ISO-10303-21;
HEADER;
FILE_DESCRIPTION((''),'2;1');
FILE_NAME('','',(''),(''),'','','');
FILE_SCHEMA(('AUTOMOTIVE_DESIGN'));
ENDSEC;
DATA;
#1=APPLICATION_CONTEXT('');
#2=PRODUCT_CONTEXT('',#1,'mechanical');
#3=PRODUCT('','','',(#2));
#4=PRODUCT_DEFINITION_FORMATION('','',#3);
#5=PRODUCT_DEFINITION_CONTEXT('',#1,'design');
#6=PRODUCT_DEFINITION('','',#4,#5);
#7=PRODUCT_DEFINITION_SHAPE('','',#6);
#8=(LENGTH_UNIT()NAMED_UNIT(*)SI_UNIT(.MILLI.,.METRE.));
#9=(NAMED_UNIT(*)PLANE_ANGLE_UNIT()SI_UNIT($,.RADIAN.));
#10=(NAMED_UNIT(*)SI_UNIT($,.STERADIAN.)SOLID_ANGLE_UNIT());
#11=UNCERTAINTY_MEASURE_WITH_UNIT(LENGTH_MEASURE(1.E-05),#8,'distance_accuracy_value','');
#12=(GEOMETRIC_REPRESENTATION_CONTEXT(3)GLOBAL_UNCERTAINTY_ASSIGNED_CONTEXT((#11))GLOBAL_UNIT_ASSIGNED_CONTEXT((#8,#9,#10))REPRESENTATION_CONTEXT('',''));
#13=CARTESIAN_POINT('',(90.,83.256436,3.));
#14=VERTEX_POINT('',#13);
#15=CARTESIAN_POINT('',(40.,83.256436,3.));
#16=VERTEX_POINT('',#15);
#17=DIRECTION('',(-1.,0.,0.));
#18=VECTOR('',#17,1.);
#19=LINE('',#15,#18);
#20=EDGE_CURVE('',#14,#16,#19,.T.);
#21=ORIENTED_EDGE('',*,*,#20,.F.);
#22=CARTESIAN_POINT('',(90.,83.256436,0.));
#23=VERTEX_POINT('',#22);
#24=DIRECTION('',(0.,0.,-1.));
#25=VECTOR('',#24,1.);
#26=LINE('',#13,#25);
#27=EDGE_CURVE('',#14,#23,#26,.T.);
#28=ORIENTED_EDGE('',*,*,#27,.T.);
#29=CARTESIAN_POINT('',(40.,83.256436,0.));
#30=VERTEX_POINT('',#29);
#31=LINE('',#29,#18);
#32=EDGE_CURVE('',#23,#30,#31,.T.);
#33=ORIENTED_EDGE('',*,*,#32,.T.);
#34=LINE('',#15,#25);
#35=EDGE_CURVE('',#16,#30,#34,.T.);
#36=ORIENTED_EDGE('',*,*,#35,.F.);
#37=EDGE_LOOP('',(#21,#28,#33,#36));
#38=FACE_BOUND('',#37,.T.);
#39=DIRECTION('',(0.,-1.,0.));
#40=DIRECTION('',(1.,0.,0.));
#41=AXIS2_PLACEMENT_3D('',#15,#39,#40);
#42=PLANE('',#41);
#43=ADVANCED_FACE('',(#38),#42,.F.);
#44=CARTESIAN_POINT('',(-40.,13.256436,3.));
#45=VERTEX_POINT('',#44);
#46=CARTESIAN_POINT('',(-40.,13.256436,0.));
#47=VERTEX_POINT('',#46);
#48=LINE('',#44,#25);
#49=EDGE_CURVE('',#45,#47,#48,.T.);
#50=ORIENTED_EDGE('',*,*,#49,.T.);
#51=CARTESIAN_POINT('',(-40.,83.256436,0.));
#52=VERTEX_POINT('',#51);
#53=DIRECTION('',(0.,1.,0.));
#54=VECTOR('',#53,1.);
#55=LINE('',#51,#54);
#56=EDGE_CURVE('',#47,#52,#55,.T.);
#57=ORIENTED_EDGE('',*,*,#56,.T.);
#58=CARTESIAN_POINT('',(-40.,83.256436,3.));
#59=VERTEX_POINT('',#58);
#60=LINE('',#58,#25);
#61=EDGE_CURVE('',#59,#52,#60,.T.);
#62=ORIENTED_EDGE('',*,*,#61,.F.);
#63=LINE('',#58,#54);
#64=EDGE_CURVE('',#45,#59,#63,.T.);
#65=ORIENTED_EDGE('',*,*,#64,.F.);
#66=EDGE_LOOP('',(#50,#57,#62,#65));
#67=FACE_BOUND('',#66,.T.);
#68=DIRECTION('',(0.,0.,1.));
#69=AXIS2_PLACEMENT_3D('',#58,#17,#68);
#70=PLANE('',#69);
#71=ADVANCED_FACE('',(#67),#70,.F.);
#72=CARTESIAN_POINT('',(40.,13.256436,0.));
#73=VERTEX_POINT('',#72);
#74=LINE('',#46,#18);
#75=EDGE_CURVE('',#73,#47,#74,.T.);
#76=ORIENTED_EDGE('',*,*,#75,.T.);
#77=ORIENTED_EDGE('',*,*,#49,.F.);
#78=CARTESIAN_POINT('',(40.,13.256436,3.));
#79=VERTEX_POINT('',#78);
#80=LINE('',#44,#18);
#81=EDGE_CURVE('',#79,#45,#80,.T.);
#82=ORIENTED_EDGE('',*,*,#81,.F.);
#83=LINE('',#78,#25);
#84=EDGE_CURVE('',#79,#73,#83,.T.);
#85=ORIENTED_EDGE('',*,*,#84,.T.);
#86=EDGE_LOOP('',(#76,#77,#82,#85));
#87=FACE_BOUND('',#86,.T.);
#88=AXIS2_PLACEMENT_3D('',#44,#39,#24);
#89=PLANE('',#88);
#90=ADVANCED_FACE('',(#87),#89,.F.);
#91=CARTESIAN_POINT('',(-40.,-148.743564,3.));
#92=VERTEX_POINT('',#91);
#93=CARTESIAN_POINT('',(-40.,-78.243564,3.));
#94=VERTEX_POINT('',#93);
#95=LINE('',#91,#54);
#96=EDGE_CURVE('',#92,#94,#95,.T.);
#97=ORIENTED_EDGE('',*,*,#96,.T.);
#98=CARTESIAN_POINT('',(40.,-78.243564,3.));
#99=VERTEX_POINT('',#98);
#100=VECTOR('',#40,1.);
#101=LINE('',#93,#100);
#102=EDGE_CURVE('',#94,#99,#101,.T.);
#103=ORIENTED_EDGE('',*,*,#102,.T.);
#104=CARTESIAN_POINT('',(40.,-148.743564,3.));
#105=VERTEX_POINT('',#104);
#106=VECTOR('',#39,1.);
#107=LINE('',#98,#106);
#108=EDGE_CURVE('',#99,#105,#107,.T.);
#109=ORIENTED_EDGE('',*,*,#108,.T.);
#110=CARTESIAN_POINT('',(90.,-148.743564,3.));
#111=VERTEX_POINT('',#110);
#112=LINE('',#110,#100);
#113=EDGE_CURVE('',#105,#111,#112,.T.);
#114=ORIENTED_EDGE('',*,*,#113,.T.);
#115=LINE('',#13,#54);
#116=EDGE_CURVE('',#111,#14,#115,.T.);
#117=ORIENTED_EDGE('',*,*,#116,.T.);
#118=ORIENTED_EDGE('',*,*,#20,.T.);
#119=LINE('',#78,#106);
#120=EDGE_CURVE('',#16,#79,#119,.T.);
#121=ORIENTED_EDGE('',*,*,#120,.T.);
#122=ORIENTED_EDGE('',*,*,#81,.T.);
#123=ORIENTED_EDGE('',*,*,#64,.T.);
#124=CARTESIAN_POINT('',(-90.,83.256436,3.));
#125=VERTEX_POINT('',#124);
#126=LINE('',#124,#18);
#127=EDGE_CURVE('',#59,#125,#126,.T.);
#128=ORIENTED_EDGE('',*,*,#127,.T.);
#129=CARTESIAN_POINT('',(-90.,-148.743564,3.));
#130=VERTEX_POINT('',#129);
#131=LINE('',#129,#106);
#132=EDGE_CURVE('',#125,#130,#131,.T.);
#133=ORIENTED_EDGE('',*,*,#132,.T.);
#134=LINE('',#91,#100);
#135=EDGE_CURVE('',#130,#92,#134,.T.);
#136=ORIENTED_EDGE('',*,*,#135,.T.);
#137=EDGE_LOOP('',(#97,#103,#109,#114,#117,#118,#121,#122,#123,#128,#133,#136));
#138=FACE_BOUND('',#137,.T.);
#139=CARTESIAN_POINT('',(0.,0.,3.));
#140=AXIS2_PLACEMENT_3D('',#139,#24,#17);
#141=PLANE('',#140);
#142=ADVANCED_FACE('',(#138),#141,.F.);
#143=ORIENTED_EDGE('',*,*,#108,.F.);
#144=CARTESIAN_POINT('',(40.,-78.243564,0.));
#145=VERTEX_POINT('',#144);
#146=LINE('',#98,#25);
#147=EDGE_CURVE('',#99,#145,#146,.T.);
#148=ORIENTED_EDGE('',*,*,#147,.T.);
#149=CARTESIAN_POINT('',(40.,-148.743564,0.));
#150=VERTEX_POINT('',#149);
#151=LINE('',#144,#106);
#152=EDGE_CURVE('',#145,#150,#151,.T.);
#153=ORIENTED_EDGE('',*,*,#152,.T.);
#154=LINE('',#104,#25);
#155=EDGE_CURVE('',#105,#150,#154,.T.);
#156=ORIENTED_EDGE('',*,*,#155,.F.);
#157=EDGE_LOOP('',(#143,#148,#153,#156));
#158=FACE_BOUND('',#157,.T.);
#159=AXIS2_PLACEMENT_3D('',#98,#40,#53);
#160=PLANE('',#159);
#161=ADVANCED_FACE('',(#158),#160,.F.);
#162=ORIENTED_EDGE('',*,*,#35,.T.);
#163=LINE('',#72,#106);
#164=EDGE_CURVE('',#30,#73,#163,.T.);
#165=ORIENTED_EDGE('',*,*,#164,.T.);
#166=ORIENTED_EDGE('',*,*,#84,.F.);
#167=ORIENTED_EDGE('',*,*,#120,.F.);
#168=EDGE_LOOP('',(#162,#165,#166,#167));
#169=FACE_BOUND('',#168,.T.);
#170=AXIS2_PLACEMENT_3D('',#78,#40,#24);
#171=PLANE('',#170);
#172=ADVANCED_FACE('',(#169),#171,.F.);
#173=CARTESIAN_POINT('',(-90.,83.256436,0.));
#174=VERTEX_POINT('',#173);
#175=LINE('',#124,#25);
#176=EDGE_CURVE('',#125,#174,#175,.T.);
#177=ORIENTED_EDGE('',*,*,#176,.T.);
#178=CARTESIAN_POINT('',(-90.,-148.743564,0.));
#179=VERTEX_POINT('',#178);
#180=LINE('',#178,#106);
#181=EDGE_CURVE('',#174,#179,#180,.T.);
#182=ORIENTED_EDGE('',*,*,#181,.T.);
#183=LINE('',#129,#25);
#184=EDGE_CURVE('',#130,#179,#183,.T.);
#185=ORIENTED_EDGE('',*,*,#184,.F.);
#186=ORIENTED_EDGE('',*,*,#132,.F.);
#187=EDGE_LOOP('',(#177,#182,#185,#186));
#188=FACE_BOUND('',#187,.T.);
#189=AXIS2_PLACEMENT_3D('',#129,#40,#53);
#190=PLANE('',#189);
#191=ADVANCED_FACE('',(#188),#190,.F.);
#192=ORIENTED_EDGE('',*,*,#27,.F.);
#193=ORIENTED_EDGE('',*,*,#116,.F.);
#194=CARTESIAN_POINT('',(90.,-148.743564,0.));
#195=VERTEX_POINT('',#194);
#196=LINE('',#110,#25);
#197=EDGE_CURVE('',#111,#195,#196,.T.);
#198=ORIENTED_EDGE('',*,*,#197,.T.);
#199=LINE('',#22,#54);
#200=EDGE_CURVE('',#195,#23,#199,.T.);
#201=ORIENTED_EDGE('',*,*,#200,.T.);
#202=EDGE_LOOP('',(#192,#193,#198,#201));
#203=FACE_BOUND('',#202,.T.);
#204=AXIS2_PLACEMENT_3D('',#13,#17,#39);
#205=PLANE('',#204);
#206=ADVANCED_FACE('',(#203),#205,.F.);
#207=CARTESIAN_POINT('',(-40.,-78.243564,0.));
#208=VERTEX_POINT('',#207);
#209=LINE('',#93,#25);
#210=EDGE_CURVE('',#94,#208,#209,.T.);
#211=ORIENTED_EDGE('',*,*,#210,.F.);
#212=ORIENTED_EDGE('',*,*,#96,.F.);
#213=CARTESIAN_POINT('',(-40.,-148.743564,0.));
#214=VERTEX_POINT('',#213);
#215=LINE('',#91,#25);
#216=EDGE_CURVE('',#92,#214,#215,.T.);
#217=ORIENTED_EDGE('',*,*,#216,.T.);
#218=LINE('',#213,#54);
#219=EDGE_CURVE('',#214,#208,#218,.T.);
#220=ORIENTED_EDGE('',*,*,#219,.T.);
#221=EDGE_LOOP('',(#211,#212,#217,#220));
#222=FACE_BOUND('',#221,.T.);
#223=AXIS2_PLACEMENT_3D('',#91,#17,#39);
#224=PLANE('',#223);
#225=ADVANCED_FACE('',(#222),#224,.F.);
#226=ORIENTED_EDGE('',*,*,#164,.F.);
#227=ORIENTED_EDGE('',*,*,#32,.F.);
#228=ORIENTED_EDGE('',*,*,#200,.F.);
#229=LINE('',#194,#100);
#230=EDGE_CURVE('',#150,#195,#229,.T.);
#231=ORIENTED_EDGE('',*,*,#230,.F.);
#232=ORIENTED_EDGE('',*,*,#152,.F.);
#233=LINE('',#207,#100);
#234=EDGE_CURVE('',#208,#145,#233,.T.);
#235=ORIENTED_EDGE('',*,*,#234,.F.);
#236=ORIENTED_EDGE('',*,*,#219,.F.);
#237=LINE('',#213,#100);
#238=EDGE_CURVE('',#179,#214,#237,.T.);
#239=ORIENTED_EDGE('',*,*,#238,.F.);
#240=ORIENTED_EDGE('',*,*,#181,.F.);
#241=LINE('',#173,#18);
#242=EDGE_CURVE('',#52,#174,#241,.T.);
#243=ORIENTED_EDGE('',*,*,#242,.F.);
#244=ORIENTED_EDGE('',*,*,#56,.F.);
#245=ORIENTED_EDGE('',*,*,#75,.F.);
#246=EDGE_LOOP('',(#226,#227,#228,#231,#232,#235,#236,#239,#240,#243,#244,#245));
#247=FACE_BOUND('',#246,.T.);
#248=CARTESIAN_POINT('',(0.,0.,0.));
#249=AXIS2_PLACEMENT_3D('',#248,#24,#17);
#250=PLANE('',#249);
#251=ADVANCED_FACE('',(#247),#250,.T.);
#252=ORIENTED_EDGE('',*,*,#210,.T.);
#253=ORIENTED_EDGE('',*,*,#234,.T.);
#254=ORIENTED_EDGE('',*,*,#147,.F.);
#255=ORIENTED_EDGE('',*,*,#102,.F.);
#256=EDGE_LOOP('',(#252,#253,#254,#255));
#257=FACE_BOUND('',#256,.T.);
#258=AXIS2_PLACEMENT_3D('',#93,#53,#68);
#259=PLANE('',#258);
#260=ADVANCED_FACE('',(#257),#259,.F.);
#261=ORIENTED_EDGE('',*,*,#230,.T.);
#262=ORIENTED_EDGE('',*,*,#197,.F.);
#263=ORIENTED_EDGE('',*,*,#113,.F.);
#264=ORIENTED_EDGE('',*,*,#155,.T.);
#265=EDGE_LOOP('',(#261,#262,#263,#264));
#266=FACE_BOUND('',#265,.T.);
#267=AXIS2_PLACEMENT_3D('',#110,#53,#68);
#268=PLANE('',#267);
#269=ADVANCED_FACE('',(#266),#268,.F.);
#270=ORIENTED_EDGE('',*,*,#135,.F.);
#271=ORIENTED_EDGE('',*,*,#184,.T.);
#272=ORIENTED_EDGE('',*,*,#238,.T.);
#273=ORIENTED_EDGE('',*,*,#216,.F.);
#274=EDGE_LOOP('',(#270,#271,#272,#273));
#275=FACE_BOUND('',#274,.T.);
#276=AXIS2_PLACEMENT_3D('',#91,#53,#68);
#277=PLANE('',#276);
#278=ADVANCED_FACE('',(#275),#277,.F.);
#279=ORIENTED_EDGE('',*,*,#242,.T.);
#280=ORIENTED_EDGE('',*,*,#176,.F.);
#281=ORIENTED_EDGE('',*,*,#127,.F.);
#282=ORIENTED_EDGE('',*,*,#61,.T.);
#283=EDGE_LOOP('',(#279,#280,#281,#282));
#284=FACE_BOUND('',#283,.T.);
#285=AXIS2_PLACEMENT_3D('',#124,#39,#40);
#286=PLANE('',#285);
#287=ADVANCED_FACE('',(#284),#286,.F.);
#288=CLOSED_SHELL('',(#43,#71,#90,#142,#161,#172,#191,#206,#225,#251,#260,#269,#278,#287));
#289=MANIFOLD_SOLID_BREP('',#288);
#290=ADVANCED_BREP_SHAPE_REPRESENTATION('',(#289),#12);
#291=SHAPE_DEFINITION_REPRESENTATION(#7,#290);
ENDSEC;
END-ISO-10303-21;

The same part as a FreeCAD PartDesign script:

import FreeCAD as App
import Part
import Sketcher
Q = App.Units.Quantity


def add_polygon(sketch, points):
    """Adds a closed chain of lines whose ends are joined by coincident constraints."""
    first, n = sketch.GeometryCount, len(points)
    for a, b in zip(points, points[1:] + points[:1]):
        sketch.addGeometry(Part.LineSegment(App.Vector(*a, 0), App.Vector(*b, 0)), False)
    for i in range(n):
        sketch.addConstraint(Sketcher.Constraint("Coincident", first + i, 2, first + (i + 1) % n, 1))

doc = App.newDocument("Part")
body = doc.addObject("PartDesign::Body", "Body")

# Sketch on XY plane
sketch1 = body.newObject("Sketcher::SketchObject", "Sketch")
sketch1.AttachmentSupport = (doc.getObject("XY_Plane"), [""])
sketch1.MapMode = "FlatFace"
add_polygon(sketch1, [(-40, 13.256436), (-40, 83.256436), (-90, 83.256436), (-90, -148.743564), (-40, -148.743564), (-40, -78.243564), (40, -78.243564), (40, -148.743564), (90, -148.743564), (90, 83.256436), (40, 83.256436), (40, 13.256436)])  # lines 0-11
sketch1.addConstraint([
    Sketcher.Constraint("Vertical", 0),
    Sketcher.Constraint("Horizontal", 1),
    Sketcher.Constraint("Vertical", 2),
    Sketcher.Constraint("Horizontal", 3),
    Sketcher.Constraint("Vertical", 4),
    Sketcher.Constraint("Horizontal", 5),
    Sketcher.Constraint("Vertical", 6),
    Sketcher.Constraint("Horizontal", 7),
    Sketcher.Constraint("Vertical", 8),
    Sketcher.Constraint("Horizontal", 9),
    Sketcher.Constraint("Vertical", 10),
    Sketcher.Constraint("Horizontal", 11),
    Sketcher.Constraint("Symmetric", 3, 2, 6, 2, -2),
    Sketcher.Constraint("Symmetric", 1, 2, 8, 2, -2),
    Sketcher.Constraint("Vertical", 0, 2, 3, 2),
    Sketcher.Constraint("Vertical", 6, 2, 9, 2),
    Sketcher.Constraint("DistanceX", 1, 2, 1, 1, Q("50 mm")),
    Sketcher.Constraint("DistanceX", 5, 1, 5, 2, Q("80 mm")),
    Sketcher.Constraint("DistanceY", 0, 1, 0, 2, Q("70 mm")),
    Sketcher.Constraint("DistanceY", 2, 2, 2, 1, Q("232 mm")),
    Sketcher.Constraint("DistanceY", 4, 1, 4, 2, Q("70.5 mm")),
    Sketcher.Constraint("DistanceY", -1, 1, 0, 2, Q("83.256436 mm")),
])
pad1 = body.newObject("PartDesign::Pad", "Pad")
pad1.Profile = sketch1
pad1.Length = 3

doc.recompute()
